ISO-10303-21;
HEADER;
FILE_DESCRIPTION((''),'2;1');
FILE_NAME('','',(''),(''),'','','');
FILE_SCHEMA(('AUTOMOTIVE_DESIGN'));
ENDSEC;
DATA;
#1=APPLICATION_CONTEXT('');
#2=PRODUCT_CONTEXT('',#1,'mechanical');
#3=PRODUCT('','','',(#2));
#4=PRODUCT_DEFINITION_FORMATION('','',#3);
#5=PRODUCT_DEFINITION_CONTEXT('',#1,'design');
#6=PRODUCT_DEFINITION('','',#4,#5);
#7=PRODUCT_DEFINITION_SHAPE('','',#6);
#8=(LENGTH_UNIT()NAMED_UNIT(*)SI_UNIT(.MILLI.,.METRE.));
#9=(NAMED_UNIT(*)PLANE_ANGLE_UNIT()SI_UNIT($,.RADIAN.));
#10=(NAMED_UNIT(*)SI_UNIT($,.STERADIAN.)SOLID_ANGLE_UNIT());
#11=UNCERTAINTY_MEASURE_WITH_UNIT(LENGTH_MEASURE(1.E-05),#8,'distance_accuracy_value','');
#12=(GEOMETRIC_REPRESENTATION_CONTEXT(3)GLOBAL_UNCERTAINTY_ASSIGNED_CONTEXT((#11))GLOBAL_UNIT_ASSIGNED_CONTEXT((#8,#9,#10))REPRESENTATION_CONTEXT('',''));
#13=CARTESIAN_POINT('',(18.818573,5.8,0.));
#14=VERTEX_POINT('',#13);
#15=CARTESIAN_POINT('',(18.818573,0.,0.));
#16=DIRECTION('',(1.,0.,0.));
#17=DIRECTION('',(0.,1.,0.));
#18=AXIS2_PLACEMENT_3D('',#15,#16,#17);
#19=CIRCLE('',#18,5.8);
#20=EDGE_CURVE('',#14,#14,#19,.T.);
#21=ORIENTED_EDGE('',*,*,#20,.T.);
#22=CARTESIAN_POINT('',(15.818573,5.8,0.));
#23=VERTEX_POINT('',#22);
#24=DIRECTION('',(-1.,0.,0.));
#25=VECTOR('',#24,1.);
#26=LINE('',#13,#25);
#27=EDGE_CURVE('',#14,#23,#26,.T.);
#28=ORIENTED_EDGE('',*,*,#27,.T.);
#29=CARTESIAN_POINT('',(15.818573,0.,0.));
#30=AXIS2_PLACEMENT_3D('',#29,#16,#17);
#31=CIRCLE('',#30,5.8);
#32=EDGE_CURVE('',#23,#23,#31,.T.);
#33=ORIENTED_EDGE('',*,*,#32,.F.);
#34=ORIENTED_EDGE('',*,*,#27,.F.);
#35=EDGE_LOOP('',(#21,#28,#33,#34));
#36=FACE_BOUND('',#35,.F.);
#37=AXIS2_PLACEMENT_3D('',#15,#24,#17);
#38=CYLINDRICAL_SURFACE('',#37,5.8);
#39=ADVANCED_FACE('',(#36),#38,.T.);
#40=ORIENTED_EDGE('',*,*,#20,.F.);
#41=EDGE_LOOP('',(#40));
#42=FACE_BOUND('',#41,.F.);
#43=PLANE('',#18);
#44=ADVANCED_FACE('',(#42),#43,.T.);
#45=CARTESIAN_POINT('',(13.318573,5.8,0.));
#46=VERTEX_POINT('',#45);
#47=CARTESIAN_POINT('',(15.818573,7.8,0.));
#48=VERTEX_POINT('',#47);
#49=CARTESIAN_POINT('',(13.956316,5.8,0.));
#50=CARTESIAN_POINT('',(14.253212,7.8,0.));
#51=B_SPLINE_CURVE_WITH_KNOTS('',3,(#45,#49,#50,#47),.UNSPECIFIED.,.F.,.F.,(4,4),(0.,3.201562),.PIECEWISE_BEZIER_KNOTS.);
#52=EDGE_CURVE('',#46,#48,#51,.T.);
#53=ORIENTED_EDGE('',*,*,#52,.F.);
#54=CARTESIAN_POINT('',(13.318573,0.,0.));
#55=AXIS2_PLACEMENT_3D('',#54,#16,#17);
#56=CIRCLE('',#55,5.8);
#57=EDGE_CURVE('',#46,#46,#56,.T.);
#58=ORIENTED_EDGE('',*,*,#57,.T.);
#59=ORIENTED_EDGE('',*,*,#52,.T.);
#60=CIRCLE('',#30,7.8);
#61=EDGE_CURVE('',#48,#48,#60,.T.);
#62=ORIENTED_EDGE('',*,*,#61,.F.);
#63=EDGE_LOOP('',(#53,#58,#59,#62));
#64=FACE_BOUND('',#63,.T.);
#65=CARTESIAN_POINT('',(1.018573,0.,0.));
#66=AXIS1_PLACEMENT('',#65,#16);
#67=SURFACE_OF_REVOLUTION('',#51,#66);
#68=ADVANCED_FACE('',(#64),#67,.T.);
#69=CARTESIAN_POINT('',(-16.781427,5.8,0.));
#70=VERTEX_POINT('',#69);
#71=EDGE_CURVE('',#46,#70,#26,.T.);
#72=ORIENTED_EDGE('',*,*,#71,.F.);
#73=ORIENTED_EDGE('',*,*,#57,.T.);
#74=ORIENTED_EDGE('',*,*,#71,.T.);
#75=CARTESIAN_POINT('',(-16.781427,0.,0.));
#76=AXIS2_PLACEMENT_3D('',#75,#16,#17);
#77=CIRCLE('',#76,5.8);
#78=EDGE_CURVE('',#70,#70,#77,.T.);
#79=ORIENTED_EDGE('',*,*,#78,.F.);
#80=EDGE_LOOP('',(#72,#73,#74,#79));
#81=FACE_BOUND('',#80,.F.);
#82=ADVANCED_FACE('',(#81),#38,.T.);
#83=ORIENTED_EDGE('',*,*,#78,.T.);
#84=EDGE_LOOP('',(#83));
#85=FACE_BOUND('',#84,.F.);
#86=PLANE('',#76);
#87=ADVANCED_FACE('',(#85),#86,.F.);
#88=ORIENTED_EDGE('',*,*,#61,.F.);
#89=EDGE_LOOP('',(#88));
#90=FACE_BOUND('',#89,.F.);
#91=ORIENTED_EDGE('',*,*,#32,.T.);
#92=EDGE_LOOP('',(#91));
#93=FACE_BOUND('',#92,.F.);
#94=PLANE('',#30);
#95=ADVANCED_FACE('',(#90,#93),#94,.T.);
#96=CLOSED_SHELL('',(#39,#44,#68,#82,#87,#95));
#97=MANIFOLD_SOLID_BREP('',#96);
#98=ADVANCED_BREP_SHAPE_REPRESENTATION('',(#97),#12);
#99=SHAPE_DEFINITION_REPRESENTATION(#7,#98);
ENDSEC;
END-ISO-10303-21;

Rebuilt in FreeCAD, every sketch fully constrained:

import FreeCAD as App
import Part
import Sketcher

V = App.Vector
Q = App.Units.Quantity

doc = App.newDocument("Part")
params = doc.addObject("Spreadsheet::Sheet", "Params")
for row, (alias, value) in enumerate([
    ("sketch1_width", "3 mm"),
    ("sketch1_width2", "35.6 mm"),
    ("revolution_angle", "360 deg"),
], start=1):
    params.set(f"A{row}", alias)
    params.set(f"B{row}", "=" + value)
    params.setAlias(f"B{row}", alias)

body = doc.addObject("PartDesign::Body", "Body")

# Sketch on XY plane
sketch1 = doc.addObject("Sketcher::SketchObject", "Sketch")
body.addObject(sketch1)
sketch1.AttachmentSupport = (doc.XY_Plane, [""])
sketch1.MapMode = "FlatFace"
sketch1.addGeometry(Part.LineSegment(V(-16.781427, 5.8, 0), V(-16.781427, 0, 0)), False)
sketch1.addGeometry(Part.LineSegment(V(-16.781427, 0, 0), V(18.818573, 0, 0)), False)
sketch1.addGeometry(Part.LineSegment(V(18.818573, 0, 0), V(18.818573, 5.8, 0)), False)
sketch1.addGeometry(Part.LineSegment(V(18.818573, 5.8, 0), V(15.818573, 5.8, 0)), False)
sketch1.addGeometry(Part.LineSegment(V(15.818573, 5.8, 0), V(15.818573, 7.8, 0)), False)
sketch1.addGeometry(Part.BSplineCurve([V(13.318573, 5.8, 0), V(13.956316, 5.8, 0), V(14.253212, 7.8, 0), V(15.818573, 7.8, 0)], [4, 4], [0, 3.201562], False, 3, [1, 1, 1, 1], False), False)
sketch1.addGeometry(Part.LineSegment(V(13.318573, 5.8, 0), V(-16.781427, 5.8, 0)), False)
sketch1.addConstraint(Sketcher.Constraint("Block", 5))
sketch1.addConstraint(Sketcher.Constraint("Coincident", 0, 2, 1, 1))
sketch1.addConstraint(Sketcher.Constraint("Coincident", 1, 2, 2, 1))
sketch1.addConstraint(Sketcher.Constraint("Coincident", 2, 2, 3, 1))
sketch1.addConstraint(Sketcher.Constraint("Coincident", 3, 2, 4, 1))
sketch1.addConstraint(Sketcher.Constraint("Coincident", 4, 2, 5, 2))
sketch1.addConstraint(Sketcher.Constraint("Coincident", 5, 1, 6, 1))
sketch1.addConstraint(Sketcher.Constraint("Coincident", 6, 2, 0, 1))
sketch1.addConstraint(Sketcher.Constraint("Vertical", 0))
sketch1.addConstraint(Sketcher.Constraint("Horizontal", 1))
sketch1.addConstraint(Sketcher.Constraint("Vertical", 2))
sketch1.addConstraint(Sketcher.Constraint("Horizontal", 3))
sketch1.addConstraint(Sketcher.Constraint("Vertical", 4))
sketch1.addConstraint(Sketcher.Constraint("Horizontal", 6))
sketch1.addConstraint(Sketcher.Constraint("PointOnObject", 0, 2, -1))
sketch1.addConstraint(Sketcher.Constraint("Horizontal", 3, 2, 6, 2))
sketch1.addConstraint(Sketcher.Constraint("DistanceX", 3, 2, 3, 1, Q("3 mm")))
sketch1.addConstraint(Sketcher.Constraint("DistanceX", 1, 1, 1, 2, Q("35.6 mm")))
sketch1.setExpression("Constraints[16]", "Params.sketch1_width")
sketch1.setExpression("Constraints[17]", "Params.sketch1_width2")
revolution = doc.addObject("PartDesign::Revolution", "Revolution")
body.addObject(revolution)
revolution.Profile = sketch1
revolution.ReferenceAxis = (sketch1, ["H_Axis"])
revolution.setExpression("Angle", "Params.revolution_angle")

doc.recompute()
